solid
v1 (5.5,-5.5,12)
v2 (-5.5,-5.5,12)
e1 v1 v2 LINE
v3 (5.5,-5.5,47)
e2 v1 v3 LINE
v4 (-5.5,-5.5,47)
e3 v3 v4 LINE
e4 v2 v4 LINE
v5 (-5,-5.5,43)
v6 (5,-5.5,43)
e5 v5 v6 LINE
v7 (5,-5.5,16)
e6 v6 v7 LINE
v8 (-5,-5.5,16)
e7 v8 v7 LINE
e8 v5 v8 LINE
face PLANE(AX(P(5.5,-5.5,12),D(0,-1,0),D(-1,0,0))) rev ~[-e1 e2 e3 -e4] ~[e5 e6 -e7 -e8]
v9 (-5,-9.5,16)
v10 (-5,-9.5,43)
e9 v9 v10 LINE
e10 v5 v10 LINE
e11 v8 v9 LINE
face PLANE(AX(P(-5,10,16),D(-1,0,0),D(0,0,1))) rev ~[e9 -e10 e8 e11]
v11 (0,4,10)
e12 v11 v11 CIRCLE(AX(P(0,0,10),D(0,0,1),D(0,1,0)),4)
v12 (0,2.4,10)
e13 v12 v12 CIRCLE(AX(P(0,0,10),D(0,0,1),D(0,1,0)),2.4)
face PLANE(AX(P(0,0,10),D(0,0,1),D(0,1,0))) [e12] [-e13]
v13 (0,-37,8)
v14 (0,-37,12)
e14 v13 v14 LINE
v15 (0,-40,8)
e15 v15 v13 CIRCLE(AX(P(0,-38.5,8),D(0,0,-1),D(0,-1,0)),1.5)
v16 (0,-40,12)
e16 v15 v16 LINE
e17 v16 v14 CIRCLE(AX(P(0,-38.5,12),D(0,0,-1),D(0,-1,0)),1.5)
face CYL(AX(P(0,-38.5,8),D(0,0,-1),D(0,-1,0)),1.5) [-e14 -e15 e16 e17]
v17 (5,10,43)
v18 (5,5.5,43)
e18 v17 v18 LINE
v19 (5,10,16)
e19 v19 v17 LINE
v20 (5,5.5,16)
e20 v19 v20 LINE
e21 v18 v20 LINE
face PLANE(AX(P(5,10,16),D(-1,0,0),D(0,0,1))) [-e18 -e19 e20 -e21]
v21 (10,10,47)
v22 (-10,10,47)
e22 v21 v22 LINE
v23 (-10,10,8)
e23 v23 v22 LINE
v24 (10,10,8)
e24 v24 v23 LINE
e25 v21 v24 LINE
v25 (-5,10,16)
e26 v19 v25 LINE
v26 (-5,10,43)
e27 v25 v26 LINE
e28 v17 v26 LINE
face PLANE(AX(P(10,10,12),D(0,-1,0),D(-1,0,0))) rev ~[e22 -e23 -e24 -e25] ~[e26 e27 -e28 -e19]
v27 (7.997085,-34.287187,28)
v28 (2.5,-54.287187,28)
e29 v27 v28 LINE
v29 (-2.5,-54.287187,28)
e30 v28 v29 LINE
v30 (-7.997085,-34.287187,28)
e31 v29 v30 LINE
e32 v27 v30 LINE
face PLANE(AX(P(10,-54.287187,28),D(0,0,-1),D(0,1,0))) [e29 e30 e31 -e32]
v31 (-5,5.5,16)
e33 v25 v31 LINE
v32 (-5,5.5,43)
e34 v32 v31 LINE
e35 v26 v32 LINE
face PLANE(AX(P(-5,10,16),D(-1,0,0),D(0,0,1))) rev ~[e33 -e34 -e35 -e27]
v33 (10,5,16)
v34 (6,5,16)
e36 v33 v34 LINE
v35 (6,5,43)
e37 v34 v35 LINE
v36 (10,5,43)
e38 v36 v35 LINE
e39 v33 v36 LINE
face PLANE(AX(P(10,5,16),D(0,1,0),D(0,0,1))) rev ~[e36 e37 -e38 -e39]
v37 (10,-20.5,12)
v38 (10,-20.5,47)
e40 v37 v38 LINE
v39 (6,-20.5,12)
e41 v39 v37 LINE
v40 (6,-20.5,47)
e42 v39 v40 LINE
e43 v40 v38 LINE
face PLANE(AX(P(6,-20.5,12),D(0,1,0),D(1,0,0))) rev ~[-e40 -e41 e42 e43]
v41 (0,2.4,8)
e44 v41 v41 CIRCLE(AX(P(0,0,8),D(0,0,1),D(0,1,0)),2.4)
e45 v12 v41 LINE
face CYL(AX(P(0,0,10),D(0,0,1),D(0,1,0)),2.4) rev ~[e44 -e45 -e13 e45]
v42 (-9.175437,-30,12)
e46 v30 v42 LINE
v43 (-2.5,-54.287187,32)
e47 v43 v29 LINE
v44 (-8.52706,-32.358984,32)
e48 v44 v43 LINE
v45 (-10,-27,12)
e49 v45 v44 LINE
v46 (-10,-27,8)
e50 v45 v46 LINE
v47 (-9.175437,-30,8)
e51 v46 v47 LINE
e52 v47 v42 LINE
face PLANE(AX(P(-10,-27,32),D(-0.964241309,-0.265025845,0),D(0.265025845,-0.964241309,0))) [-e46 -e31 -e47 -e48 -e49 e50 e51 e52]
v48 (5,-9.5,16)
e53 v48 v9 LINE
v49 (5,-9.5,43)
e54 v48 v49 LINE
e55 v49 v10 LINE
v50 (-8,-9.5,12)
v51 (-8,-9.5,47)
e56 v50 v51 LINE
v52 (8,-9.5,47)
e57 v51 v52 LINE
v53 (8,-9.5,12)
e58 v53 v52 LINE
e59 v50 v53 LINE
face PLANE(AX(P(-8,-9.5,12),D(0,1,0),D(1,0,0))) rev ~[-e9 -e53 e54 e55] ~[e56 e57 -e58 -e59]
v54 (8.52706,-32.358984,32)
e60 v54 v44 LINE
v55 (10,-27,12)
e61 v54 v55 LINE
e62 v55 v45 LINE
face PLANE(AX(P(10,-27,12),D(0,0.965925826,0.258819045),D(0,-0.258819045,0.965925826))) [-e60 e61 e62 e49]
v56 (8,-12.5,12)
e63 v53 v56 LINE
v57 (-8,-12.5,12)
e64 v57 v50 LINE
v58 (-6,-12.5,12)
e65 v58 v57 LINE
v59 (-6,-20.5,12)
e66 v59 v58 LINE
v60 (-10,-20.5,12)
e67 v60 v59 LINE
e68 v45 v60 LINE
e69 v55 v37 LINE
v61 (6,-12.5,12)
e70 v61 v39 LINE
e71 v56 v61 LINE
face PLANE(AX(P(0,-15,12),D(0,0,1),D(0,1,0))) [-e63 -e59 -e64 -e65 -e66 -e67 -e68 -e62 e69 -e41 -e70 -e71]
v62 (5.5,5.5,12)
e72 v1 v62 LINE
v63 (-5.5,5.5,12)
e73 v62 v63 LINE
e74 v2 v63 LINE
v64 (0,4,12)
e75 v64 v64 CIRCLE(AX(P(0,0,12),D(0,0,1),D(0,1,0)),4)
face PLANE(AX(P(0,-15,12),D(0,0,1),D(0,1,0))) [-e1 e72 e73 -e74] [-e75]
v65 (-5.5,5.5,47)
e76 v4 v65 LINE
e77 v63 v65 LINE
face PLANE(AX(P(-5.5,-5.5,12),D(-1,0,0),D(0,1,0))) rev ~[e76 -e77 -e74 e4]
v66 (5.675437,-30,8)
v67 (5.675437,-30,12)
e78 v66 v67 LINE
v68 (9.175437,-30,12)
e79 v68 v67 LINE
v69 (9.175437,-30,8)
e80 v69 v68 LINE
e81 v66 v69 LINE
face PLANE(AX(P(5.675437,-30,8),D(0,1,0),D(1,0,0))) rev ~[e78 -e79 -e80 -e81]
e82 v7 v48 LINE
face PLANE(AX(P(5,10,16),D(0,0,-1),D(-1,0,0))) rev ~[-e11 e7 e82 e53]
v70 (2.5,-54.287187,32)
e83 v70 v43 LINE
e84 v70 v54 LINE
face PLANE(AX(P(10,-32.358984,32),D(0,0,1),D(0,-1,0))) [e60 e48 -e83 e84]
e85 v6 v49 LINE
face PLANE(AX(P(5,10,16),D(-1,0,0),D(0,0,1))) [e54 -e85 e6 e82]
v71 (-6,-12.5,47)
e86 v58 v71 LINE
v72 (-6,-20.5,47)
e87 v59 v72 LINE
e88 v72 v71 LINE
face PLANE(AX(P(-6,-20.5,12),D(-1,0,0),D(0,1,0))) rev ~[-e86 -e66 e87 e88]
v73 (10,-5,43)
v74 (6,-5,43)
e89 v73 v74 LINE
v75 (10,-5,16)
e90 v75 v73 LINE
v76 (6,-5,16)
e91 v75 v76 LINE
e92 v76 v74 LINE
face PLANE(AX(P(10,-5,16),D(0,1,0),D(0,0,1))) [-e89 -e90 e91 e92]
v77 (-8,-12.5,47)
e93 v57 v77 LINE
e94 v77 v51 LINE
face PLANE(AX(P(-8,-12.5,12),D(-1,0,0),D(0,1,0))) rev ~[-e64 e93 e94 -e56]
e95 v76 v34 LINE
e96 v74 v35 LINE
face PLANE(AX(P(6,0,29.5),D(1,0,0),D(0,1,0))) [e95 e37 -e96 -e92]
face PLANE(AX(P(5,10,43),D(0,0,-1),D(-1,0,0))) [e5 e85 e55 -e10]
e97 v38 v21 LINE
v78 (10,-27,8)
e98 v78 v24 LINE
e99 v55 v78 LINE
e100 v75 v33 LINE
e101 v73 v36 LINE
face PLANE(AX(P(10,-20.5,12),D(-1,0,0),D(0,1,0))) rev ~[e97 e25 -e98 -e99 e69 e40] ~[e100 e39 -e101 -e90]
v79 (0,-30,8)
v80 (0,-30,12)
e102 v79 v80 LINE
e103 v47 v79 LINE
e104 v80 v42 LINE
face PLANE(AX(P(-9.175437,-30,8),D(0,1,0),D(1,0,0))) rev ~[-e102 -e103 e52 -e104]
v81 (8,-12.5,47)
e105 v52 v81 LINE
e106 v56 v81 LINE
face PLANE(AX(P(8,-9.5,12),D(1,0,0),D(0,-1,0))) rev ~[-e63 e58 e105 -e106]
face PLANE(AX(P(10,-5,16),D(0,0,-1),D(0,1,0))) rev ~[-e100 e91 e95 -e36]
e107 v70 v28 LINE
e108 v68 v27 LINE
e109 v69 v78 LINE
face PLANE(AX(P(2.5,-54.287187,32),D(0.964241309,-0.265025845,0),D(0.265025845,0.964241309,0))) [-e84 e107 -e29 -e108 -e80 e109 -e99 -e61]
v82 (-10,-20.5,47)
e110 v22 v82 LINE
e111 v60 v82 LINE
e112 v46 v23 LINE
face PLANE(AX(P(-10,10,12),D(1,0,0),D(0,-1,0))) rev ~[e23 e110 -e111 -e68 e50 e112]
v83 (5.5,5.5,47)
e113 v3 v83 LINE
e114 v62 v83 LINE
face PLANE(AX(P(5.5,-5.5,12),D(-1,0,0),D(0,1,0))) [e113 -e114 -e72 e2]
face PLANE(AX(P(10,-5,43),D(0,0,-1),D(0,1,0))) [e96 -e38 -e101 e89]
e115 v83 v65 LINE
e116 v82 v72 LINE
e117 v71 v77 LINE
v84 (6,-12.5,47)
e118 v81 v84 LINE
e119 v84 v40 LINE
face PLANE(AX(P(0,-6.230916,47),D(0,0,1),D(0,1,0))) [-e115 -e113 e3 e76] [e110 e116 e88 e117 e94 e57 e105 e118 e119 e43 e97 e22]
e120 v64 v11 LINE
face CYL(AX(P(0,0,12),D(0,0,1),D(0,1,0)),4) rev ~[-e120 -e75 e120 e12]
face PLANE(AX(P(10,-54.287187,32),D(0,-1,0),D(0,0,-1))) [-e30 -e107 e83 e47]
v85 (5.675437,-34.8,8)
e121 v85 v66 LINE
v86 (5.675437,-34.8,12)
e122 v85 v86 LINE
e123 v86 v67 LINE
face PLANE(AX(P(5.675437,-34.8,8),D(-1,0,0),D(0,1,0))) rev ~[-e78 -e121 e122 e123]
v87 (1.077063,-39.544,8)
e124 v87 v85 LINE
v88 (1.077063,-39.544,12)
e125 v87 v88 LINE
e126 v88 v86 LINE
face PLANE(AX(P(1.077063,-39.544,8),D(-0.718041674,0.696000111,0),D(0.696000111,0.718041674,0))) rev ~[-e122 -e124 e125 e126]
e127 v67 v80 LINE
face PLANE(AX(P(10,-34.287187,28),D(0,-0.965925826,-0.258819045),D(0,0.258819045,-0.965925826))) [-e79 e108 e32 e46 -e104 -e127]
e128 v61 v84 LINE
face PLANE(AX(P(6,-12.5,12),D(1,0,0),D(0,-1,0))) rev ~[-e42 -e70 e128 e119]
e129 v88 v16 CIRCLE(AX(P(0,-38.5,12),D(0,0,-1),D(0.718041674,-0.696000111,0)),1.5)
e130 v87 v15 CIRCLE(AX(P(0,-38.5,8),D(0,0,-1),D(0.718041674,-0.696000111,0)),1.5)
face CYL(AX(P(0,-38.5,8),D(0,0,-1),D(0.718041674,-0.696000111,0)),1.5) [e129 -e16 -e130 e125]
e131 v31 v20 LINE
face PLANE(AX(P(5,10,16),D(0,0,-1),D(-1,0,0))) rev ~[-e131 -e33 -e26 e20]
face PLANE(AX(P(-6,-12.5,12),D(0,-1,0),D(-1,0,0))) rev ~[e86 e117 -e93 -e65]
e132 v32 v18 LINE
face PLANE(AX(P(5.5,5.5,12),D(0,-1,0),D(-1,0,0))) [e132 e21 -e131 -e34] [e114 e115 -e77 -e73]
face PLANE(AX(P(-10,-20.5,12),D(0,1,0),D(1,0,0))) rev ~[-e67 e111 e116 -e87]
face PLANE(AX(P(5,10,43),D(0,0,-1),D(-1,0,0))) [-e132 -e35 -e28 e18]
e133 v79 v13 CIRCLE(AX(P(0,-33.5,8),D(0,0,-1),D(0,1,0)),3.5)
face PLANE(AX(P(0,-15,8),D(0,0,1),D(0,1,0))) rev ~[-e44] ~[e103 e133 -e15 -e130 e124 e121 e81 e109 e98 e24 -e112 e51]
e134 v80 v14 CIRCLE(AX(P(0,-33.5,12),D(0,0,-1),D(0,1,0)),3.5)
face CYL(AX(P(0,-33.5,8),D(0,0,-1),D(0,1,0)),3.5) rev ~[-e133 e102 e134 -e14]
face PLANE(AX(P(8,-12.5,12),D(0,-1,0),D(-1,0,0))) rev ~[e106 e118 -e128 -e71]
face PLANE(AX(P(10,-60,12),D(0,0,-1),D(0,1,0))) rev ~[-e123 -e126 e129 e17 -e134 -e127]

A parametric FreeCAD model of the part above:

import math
import FreeCAD as App
import Part
import Sketcher

V = App.Vector
Q = App.Units.Quantity


def add_polygon(sketch, points):
    """Adds a closed chain of lines whose ends are joined by coincident constraints."""
    first, n = sketch.GeometryCount, len(points)
    for a, b in zip(points, points[1:] + points[:1]):
        sketch.addGeometry(Part.LineSegment(App.Vector(*a, 0), App.Vector(*b, 0)), False)
    for i in range(n):
        sketch.addConstraint(Sketcher.Constraint("Coincident", first + i, 2, first + (i + 1) % n, 1))

doc = App.newDocument("Part")
body = doc.addObject("PartDesign::Body", "Body")

# Sketch on XY plane
sketch1 = body.newObject("Sketcher::SketchObject", "Sketch")
sketch1.AttachmentSupport = (doc.getObject("XY_Plane"), [""])
sketch1.MapMode = "FlatFace"
sketch1.AttachmentOffset = App.Placement(V(0, 0, 8), App.Rotation())
add_polygon(sketch1, [(-40, 10), (-40, -10), (10, -10), (10, 10)])  # lines 0-3
sketch1.addConstraint(Sketcher.Constraint("Vertical", 0))
sketch1.addConstraint(Sketcher.Constraint("Horizontal", 1))
sketch1.addConstraint(Sketcher.Constraint("Vertical", 2))
sketch1.addConstraint(Sketcher.Constraint("Horizontal", 3))
sketch1.addConstraint(Sketcher.Constraint("DistanceX", 1, 1, 1, 2, 50.0))
sketch1.addConstraint(Sketcher.Constraint("DistanceY", 0, 2, 0, 1, 20.0))
sketch1.addConstraint(Sketcher.Constraint("DistanceX", 0, 2, -1, 1, 40.0))
sketch1.addConstraint(Sketcher.Constraint("DistanceY", 0, 2, -1, 1, 10.0))
pad1 = body.newObject("PartDesign::Pad", "Pad")
pad1.Profile = sketch1
pad1.Length = 4

# Sketch on XY plane
sketch2 = body.newObject("Sketcher::SketchObject", "Sketch001")
sketch2.AttachmentSupport = (doc.getObject("XY_Plane"), [""])
sketch2.MapMode = "FlatFace"
sketch2.AttachmentOffset = App.Placement(V(0, 0, 12), App.Rotation())
sketch2.addGeometry(Part.Circle(V(0, 0, 0), V(0, 0, 1), 4), False)
sketch2.addConstraint(Sketcher.Constraint("Coincident", 0, 3, -1, 1))
sketch2.addConstraint(Sketcher.Constraint("Diameter", 0, 8.0))
pocket1 = body.newObject("PartDesign::Pocket", "Pocket")
pocket1.Profile = sketch2
pocket1.Length = 2

# Sketch on XY plane
sketch3 = body.newObject("Sketcher::SketchObject", "Sketch002")
sketch3.AttachmentSupport = (doc.getObject("XY_Plane"), [""])
sketch3.MapMode = "FlatFace"
sketch3.AttachmentOffset = App.Placement(V(0, 0, 10), App.Rotation())
sketch3.addGeometry(Part.Circle(V(0, 0, 0), V(0, 0, 1), 2.4), False)
sketch3.addConstraint(Sketcher.Constraint("Coincident", 0, 3, -1, 1))
sketch3.addConstraint(Sketcher.Constraint("Diameter", 0, 4.8))
pocket2 = body.newObject("PartDesign::Pocket", "Pocket001")
pocket2.Profile = sketch3
pocket2.Length = 2

# Sketch on XY plane
sketch4 = body.newObject("Sketcher::SketchObject", "Sketch003")
sketch4.AttachmentSupport = (doc.getObject("XY_Plane"), [""])
sketch4.MapMode = "FlatFace"
sketch4.AttachmentOffset = App.Placement(V(0, 0, 12), App.Rotation())
add_polygon(sketch4, [(10, -10), (10, 10), (-20.5, 10), (-20.5, 6), (-12.5, 6), (-12.5, 8), (-9.5, 8), (-9.5, -8), (-12.5, -8), (-12.5, -6), (-20.5, -6), (-20.5, -10)])  # lines 0-11
add_polygon(sketch4, [(5.5, -5.5), (-5.5, -5.5), (-5.5, 5.5), (5.5, 5.5)])  # lines 12-15
add_polygon(sketch4, [(-60, 10), (-60, -10), (-27, -10), (-27, 10)])  # lines 16-19
sketch4.addConstraint(Sketcher.Constraint("Vertical", 0))
sketch4.addConstraint(Sketcher.Constraint("Horizontal", 1))
sketch4.addConstraint(Sketcher.Constraint("Vertical", 2))
sketch4.addConstraint(Sketcher.Constraint("Horizontal", 3))
sketch4.addConstraint(Sketcher.Constraint("Vertical", 4))
sketch4.addConstraint(Sketcher.Constraint("Horizontal", 5))
sketch4.addConstraint(Sketcher.Constraint("Vertical", 6))
sketch4.addConstraint(Sketcher.Constraint("Horizontal", 7))
sketch4.addConstraint(Sketcher.Constraint("Vertical", 8))
sketch4.addConstraint(Sketcher.Constraint("Horizontal", 9))
sketch4.addConstraint(Sketcher.Constraint("Vertical", 10))
sketch4.addConstraint(Sketcher.Constraint("Horizontal", 11))
sketch4.addConstraint(Sketcher.Constraint("Horizontal", 12))
sketch4.addConstraint(Sketcher.Constraint("Vertical", 13))
sketch4.addConstraint(Sketcher.Constraint("Horizontal", 14))
sketch4.addConstraint(Sketcher.Constraint("Vertical", 15))
sketch4.addConstraint(Sketcher.Constraint("Vertical", 16))
sketch4.addConstraint(Sketcher.Constraint("Horizontal", 17))
sketch4.addConstraint(Sketcher.Constraint("Vertical", 18))
sketch4.addConstraint(Sketcher.Constraint("Horizontal", 19))
sketch4.addConstraint(Sketcher.Constraint("Symmetric", 12, 2, 14, 2, -1, 1))
sketch4.addConstraint(Sketcher.Constraint("Symmetric", 4, 2, 7, 2, -1))
sketch4.addConstraint(Sketcher.Constraint("Symmetric", 2, 2, 9, 2, -1))
sketch4.addConstraint(Sketcher.Constraint("Horizontal", 11, 2, 16, 2))
sketch4.addConstraint(Sketcher.Constraint("Horizontal", 1, 2, 18, 2))
sketch4.addConstraint(Sketcher.Constraint("Equal", 2, 10))
sketch4.addConstraint(Sketcher.Constraint("Equal", 14, 13))
sketch4.addConstraint(Sketcher.Constraint("DistanceX", 3, 1, 3, 2, 8.0))
sketch4.addConstraint(Sketcher.Constraint("DistanceX", 5, 1, 5, 2, 3.0))
sketch4.addConstraint(Sketcher.Constraint("DistanceX", 12, 2, 12, 1, 11.0))
sketch4.addConstraint(Sketcher.Constraint("DistanceX", 17, 1, 17, 2, 33.0))
sketch4.addConstraint(Sketcher.Constraint("DistanceY", 0, 1, 0, 2, 20.0))
sketch4.addConstraint(Sketcher.Constraint("DistanceY", 2, 2, 2, 1, 4.0))
sketch4.addConstraint(Sketcher.Constraint("DistanceY", 4, 1, 4, 2, 2.0))
sketch4.addConstraint(Sketcher.Constraint("DistanceX", 1, 2, 1, 1, 30.5))
sketch4.addConstraint(Sketcher.Constraint("DistanceX", -1, 1, 0, 2, 10.0))
sketch4.addConstraint(Sketcher.Constraint("DistanceX", 16, 2, -1, 1, 60.0))
pad2 = body.newObject("PartDesign::Pad", "Pad001")
pad2.Profile = sketch4
pad2.Length = 35

# Sketch on YZ plane
sketch5 = body.newObject("Sketcher::SketchObject", "Sketch004")
sketch5.AttachmentSupport = (doc.getObject("YZ_Plane"), [""])
sketch5.MapMode = "FlatFace"
sketch5.AttachmentOffset = App.Placement(V(0, 0, 10), App.Rotation())
add_polygon(sketch5, [(-5, 43), (-5, 16), (5, 16), (5, 43)])  # lines 0-3
sketch5.addConstraint(Sketcher.Constraint("Vertical", 0))
sketch5.addConstraint(Sketcher.Constraint("Horizontal", 1))
sketch5.addConstraint(Sketcher.Constraint("Vertical", 2))
sketch5.addConstraint(Sketcher.Constraint("Horizontal", 3))
sketch5.addConstraint(Sketcher.Constraint("DistanceX", 1, 1, 1, 2, 10.0))
sketch5.addConstraint(Sketcher.Constraint("DistanceY", 0, 2, 0, 1, 27.0))
sketch5.addConstraint(Sketcher.Constraint("DistanceX", 0, 2, -1, 1, 5.0))
sketch5.addConstraint(Sketcher.Constraint("DistanceY", -1, 1, 0, 2, 16.0))
pocket3 = body.newObject("PartDesign::Pocket", "Pocket002")
pocket3.Profile = sketch5
pocket3.Length = 20

# Sketch on XZ plane
sketch6 = body.newObject("Sketcher::SketchObject", "Sketch005")
sketch6.AttachmentSupport = (doc.getObject("XZ_Plane"), [""])
sketch6.MapMode = "FlatFace"
sketch6.AttachmentOffset = App.Placement(V(0, 0, 10), App.Rotation())
add_polygon(sketch6, [(-5, 43), (-5, 16), (5, 16), (5, 43)])  # lines 0-3
sketch6.addConstraint(Sketcher.Constraint("Vertical", 0))
sketch6.addConstraint(Sketcher.Constraint("Horizontal", 1))
sketch6.addConstraint(Sketcher.Constraint("Vertical", 2))
sketch6.addConstraint(Sketcher.Constraint("Horizontal", 3))
sketch6.addConstraint(Sketcher.Constraint("DistanceX", 1, 1, 1, 2, 10.0))
sketch6.addConstraint(Sketcher.Constraint("DistanceY", 0, 2, 0, 1, 27.0))
sketch6.addConstraint(Sketcher.Constraint("DistanceX", 0, 2, -1, 1, 5.0))
sketch6.addConstraint(Sketcher.Constraint("DistanceY", -1, 1, 0, 2, 16.0))
pocket4 = body.newObject("PartDesign::Pocket", "Pocket003")
pocket4.Profile = sketch6
pocket4.Length = 4

# Sketch on XZ plane
sketch7 = body.newObject("Sketcher::SketchObject", "Sketch006")
sketch7.AttachmentSupport = (doc.getObject("XZ_Plane"), [""])
sketch7.MapMode = "FlatFace"
sketch7.AttachmentOffset = App.Placement(V(0, 0, 10), App.Rotation())
add_polygon(sketch7, [(-32.4, 32), (-27, 12), (-27, 47), (-60, 47), (-60, 12), (-30, 12), (-34.3, 28), (-54.3, 28), (-54.3, 32)])  # lines 0-8
sketch7.addConstraint(Sketcher.Constraint("Vertical", 1))
sketch7.addConstraint(Sketcher.Constraint("Horizontal", 2))
sketch7.addConstraint(Sketcher.Constraint("Vertical", 3))
sketch7.addConstraint(Sketcher.Constraint("Horizontal", 4))
sketch7.addConstraint(Sketcher.Constraint("Horizontal", 6))
sketch7.addConstraint(Sketcher.Constraint("Vertical", 7))
sketch7.addConstraint(Sketcher.Constraint("Horizontal", 8))
sketch7.addConstraint(Sketcher.Constraint("Parallel", 0, 5))
sketch7.addConstraint(Sketcher.Constraint("Horizontal", 0, 2, 3, 2))
sketch7.addConstraint(Sketcher.Constraint("DistanceX", 2, 2, 2, 1, 33.0))
sketch7.addConstraint(Sketcher.Constraint("DistanceX", 4, 1, 4, 2, 30.0))
sketch7.addConstraint(Sketcher.Constraint("DistanceX", 6, 2, 6, 1, 20.0))
sketch7.addConstraint(Sketcher.Constraint("DistanceY", 1, 1, 1, 2, 35.0))
sketch7.addConstraint(Sketcher.Constraint("DistanceY", 7, 1, 7, 2, 4.0))
sketch7.addConstraint(Sketcher.Constraint("Angle", 0, Q("-75 deg")))
sketch7.addConstraint(Sketcher.Constraint("DistanceX", 0, 2, -1, 1, 27.0))
sketch7.addConstraint(Sketcher.Constraint("DistanceY", -1, 1, 0, 2, 12.0))
sketch7.addConstraint(Sketcher.Constraint("DistanceY", -1, 1, 5, 2, 28.0))
pocket5 = body.newObject("PartDesign::Pocket", "Pocket004")
pocket5.Profile = sketch7
pocket5.Length = 20

# Sketch on XY plane
sketch8 = body.newObject("Sketcher::SketchObject", "Sketch007")
sketch8.AttachmentSupport = (doc.getObject("XY_Plane"), [""])
sketch8.MapMode = "FlatFace"
sketch8.AttachmentOffset = App.Placement(V(0, 0, 32), App.Rotation())
add_polygon(sketch8, [(-54, -2), (-54, -10), (-27, -10)])  # lines 0-2
add_polygon(sketch8, [(-54, 10), (-54, 2), (-27, 10)])  # lines 3-5
sketch8.addConstraint(Sketcher.Constraint("Vertical", 0))
sketch8.addConstraint(Sketcher.Constraint("Horizontal", 1))
sketch8.addConstraint(Sketcher.Constraint("Vertical", 3))
sketch8.addConstraint(Sketcher.Constraint("Horizontal", 5))
sketch8.addConstraint(Sketcher.Constraint("Symmetric", 2, 2, 3, 2, -1))
sketch8.addConstraint(Sketcher.Constraint("Symmetric", 1, 2, 4, 2, -1))
sketch8.addConstraint(Sketcher.Constraint("DistanceY", 0, 2, 0, 1, 7.5))
sketch8.addConstraint(Sketcher.Constraint("DistanceY", 0, 2, -1, 1, 10.0))
sketch8.addConstraint(Sketcher.Constraint("DistanceX", 1, 2, -1, 1, 27.0))
sketch8.addConstraint(Sketcher.Constraint("DistanceX", 1, 1, 1, 2, 27.287187))
pocket6 = body.newObject("PartDesign::Pocket", "Pocket005")
pocket6.Profile = sketch8
pocket6.Length = 25

# Sketch on XY plane
sketch9 = body.newObject("Sketcher::SketchObject", "Sketch008")
sketch9.AttachmentSupport = (doc.getObject("XY_Plane"), [""])
sketch9.MapMode = "FlatFace"
sketch9.AttachmentOffset = App.Placement(V(0, 0, 8), App.Rotation())
sketch9.addGeometry(Part.LineSegment(V(-39.5, -1.1, 0), V(-34.8, -5.7, 0)), False)
sketch9.addGeometry(Part.LineSegment(V(-34.8, -5.7, 0), V(-30, -5.7, 0)), False)
sketch9.addGeometry(Part.LineSegment(V(-30, -5.7, 0), V(-30, -9.2, 0)), False)
sketch9.addGeometry(Part.LineSegment(V(-30, -9.2, 0), V(-40, -6.4, 0)), False)
sketch9.addGeometry(Part.LineSegment(V(-40, -6.4, 0), V(-40, 0, 0)), False)
sketch9.addGeometry(Part.ArcOfCircle(Part.Circle(V(-38.5, 0, 0), V(0, 0, 1), 1.5), math.radians(180), math.radians(226)), False)
sketch9.addConstraint(Sketcher.Constraint("Coincident", 0, 2, 1, 1))
sketch9.addConstraint(Sketcher.Constraint("Coincident", 1, 2, 2, 1))
sketch9.addConstraint(Sketcher.Constraint("Coincident", 2, 2, 3, 1))
sketch9.addConstraint(Sketcher.Constraint("Coincident", 3, 2, 4, 1))
sketch9.addConstraint(Sketcher.Constraint("Tangent", 4, 2, 5, 1))
sketch9.addConstraint(Sketcher.Constraint("Tangent", 5, 2, 0, 1))
sketch9.addConstraint(Sketcher.Constraint("Horizontal", 1))
sketch9.addConstraint(Sketcher.Constraint("Vertical", 2))
sketch9.addConstraint(Sketcher.Constraint("Vertical", 4))
sketch9.addConstraint(Sketcher.Constraint("PointOnObject", 5, 3, -1))
sketch9.addConstraint(Sketcher.Constraint("Radius", 5, 1.5))
sketch9.addConstraint(Sketcher.Constraint("DistanceX", 1, 1, 1, 2, 4.8))
sketch9.addConstraint(Sketcher.Constraint("DistanceY", 2, 2, 2, 1, 3.5))
sketch9.addConstraint(Sketcher.Constraint("DistanceX", 1, 2, -1, 1, 30.0))
sketch9.addConstraint(Sketcher.Constraint("DistanceX", 3, 2, -1, 1, 40.0))
sketch9.addConstraint(Sketcher.Constraint("DistanceX", 5, 2, -1, 1, 39.544))
sketch9.addConstraint(Sketcher.Constraint("DistanceY", 4, 1, 4, 2, 6.426894))
pocket7 = body.newObject("PartDesign::Pocket", "Pocket006")
pocket7.Profile = sketch9
pocket7.Length = 4
pocket7.Reversed = True

# Sketch on XY plane
sketch10 = body.newObject("Sketcher::SketchObject", "Sketch009")
sketch10.AttachmentSupport = (doc.getObject("XY_Plane"), [""])
sketch10.MapMode = "FlatFace"
sketch10.AttachmentOffset = App.Placement(V(0, 0, 8), App.Rotation())
sketch10.addGeometry(Part.ArcOfCircle(Part.Circle(V(-38.5, 0, 0), V(0, 0, 1), 1.5), math.radians(0), math.radians(180)), False)
sketch10.addGeometry(Part.LineSegment(V(-40, 0, 0), V(-40, 6.4, 0)), False)
sketch10.addGeometry(Part.LineSegment(V(-40, 6.4, 0), V(-30, 9.2, 0)), False)
sketch10.addGeometry(Part.LineSegment(V(-30, 9.2, 0), V(-30, 0, 0)), False)
sketch10.addGeometry(Part.ArcOfCircle(Part.Circle(V(-33.5, 0, 0), V(0, 0, 1), 3.5), math.radians(180), math.radians(360)), False)
sketch10.addConstraint(Sketcher.Constraint("Tangent", 0, 2, 1, 1))
sketch10.addConstraint(Sketcher.Constraint("Coincident", 1, 2, 2, 1))
sketch10.addConstraint(Sketcher.Constraint("Coincident", 2, 2, 3, 1))
sketch10.addConstraint(Sketcher.Constraint("Tangent", 3, 2, 4, 2))
sketch10.addConstraint(Sketcher.Constraint("Tangent", 4, 1, 0, 1))
sketch10.addConstraint(Sketcher.Constraint("Vertical", 1))
sketch10.addConstraint(Sketcher.Constraint("Vertical", 3))
sketch10.addConstraint(Sketcher.Constraint("PointOnObject", 0, 3, -1))
sketch10.addConstraint(Sketcher.Constraint("PointOnObject", 4, 3, -1))
sketch10.addConstraint(Sketcher.Constraint("Radius", 0, 1.5))
sketch10.addConstraint(Sketcher.Constraint("Radius", 4, 3.5))
sketch10.addConstraint(Sketcher.Constraint("DistanceX", 0, 2, -1, 1, 40.0))
sketch10.addConstraint(Sketcher.Constraint("DistanceY", 1, 1, 1, 2, 6.426894))
sketch10.addConstraint(Sketcher.Constraint("DistanceY", 3, 2, 3, 1, 9.175437))
pocket8 = body.newObject("PartDesign::Pocket", "Pocket007")
pocket8.Profile = sketch10
pocket8.Length = 4
pocket8.Reversed = True
body2 = doc.addObject("PartDesign::Body", "Body001")
doc.recompute()

body.Placement = App.Placement(V(0, 0, 0), App.Rotation(V(0, 0, 1), 90))
boolean = body2.newObject("PartDesign::Boolean", "Boolean")
boolean.Type = "Fuse"
boolean.addObjects([body])

doc.recompute()
